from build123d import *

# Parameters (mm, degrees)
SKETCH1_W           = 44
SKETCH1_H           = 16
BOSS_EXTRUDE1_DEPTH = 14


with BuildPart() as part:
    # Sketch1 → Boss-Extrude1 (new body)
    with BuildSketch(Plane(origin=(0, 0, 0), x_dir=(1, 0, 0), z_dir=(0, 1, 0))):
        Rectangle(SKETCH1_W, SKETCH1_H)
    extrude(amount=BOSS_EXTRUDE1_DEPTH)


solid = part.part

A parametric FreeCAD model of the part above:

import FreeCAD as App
import Part
import Sketcher
from FreeCAD import Vector
Q = App.Units.Quantity


def add_polygon(sketch, points):
    """Adds a closed chain of lines whose ends are joined by coincident constraints."""
    first, n = sketch.GeometryCount, len(points)
    for a, b in zip(points, points[1:] + points[:1]):
        sketch.addGeometry(Part.LineSegment(App.Vector(*a, 0), App.Vector(*b, 0)), False)
    for i in range(n):
        sketch.addConstraint(Sketcher.Constraint("Coincident", first + i, 2, first + (i + 1) % n, 1))

doc = App.newDocument("Part")
params = doc.addObject("Spreadsheet::Sheet", "Params")
for row, (alias, value) in enumerate([
    ("sketch1_width", "44 mm"),
    ("sketch1_height", "16 mm"),
    ("pad1_length", "14 mm"),
], start=1):
    params.set(f"A{row}", alias)
    params.set(f"B{row}", "=" + value)
    params.setAlias(f"B{row}", alias)

body = doc.addObject("PartDesign::Body", "Body")

# Sketch on XZ plane
sketch1 = doc.addObject("Sketcher::SketchObject", "Sketch")
body.addObject(sketch1)
sketch1.AttachmentSupport = (doc.XZ_Plane, [""])
sketch1.MapMode = "FlatFace"
add_polygon(sketch1, [(-22, -8), (-22, 8), (22, 8), (22, -8)])  # lines 0-3
sketch1.addConstraint([
    Sketcher.Constraint("Vertical", 0),
    Sketcher.Constraint("Horizontal", 1),
    Sketcher.Constraint("Vertical", 2),
    Sketcher.Constraint("Horizontal", 3),
    Sketcher.Constraint("Symmetric", 0, 2, 2, 2, -1, 1),
    Sketcher.Constraint("DistanceX", 1, 1, 1, 2, Q("44 mm")),
    Sketcher.Constraint("DistanceY", 0, 1, 0, 2, Q("16 mm")),
])
sketch1.setExpression("Constraints[9]", "Params.sketch1_width")
sketch1.setExpression("Constraints[10]", "Params.sketch1_height")
pad1 = doc.addObject("PartDesign::Pad", "Pad")
body.addObject(pad1)
pad1.Profile = sketch1
pad1.setExpression("Length", "Params.pad1_length")
pad1.Reversed = True

doc.recompute()
